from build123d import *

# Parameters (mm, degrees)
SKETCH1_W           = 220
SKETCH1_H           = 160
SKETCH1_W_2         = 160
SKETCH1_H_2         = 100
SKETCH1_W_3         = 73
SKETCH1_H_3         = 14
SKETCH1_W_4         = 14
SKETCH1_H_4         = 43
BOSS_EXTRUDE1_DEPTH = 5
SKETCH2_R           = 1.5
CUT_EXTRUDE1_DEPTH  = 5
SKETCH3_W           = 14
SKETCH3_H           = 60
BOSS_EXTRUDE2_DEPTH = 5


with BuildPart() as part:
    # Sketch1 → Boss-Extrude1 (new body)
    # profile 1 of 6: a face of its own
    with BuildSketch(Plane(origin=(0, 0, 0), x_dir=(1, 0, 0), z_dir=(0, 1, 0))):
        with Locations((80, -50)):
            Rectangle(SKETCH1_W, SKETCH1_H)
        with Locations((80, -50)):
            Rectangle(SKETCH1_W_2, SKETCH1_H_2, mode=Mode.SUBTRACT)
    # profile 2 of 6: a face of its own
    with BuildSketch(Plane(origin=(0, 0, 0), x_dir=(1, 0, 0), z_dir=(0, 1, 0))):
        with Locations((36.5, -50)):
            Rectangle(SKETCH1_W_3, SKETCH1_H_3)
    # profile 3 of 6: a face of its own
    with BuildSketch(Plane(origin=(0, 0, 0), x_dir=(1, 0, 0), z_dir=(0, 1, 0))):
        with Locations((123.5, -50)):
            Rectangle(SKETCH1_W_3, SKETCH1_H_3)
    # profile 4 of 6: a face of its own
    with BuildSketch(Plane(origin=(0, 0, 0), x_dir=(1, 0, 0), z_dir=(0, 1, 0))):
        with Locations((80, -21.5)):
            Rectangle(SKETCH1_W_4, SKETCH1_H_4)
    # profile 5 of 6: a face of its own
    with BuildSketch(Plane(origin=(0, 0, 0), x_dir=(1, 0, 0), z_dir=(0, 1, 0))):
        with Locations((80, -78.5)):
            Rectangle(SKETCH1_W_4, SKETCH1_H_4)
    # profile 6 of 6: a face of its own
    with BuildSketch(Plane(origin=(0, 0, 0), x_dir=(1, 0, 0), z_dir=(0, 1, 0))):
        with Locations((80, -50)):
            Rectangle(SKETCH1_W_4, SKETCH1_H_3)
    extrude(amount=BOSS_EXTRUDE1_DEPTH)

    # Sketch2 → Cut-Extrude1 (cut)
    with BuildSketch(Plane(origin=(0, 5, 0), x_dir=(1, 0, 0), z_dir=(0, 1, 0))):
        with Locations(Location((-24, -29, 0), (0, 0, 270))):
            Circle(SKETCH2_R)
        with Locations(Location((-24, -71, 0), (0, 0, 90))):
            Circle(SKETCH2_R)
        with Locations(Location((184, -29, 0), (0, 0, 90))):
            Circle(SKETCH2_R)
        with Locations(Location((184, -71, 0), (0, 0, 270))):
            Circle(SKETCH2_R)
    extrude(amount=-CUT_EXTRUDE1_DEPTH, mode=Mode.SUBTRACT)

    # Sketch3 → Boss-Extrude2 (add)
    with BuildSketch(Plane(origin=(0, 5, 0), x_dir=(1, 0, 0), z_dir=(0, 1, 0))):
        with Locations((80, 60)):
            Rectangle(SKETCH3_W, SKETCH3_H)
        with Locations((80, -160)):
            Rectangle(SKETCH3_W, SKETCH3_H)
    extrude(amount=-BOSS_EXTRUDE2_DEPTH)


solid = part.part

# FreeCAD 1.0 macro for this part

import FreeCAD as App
import Part
import Sketcher
from FreeCAD import Vector

doc = App.newDocument("Part")
body = doc.addObject("PartDesign::Body", "Body")

sketch1 = body.newObject("Sketcher::SketchObject", "Sketch")
sketch1.AttachmentSupport = (doc.getObject("XZ_Plane"), [""])
sketch1.MapMode = "FlatFace"
sketch1.addGeometry([
    Part.LineSegment(Vector(-30, -30, 0), Vector(-30, 130, 0)),
    Part.LineSegment(Vector(-30, 130, 0), Vector(190, 130, 0)),
    Part.LineSegment(Vector(190, 130, 0), Vector(190, -30, 0)),
    Part.LineSegment(Vector(190, -30, 0), Vector(-30, -30, 0)),
    Part.LineSegment(Vector(73, 100, 0), Vector(0, 100, 0)),
    Part.LineSegment(Vector(0, 100, 0), Vector(0, 57, 0)),
    Part.LineSegment(Vector(0, 57, 0), Vector(73, 57, 0)),
    Part.LineSegment(Vector(73, 57, 0), Vector(73, 100, 0)),
    Part.LineSegment(Vector(160, 100, 0), Vector(87, 100, 0)),
    Part.LineSegment(Vector(87, 100, 0), Vector(87, 57, 0)),
    Part.LineSegment(Vector(87, 57, 0), Vector(160, 57, 0)),
    Part.LineSegment(Vector(160, 57, 0), Vector(160, 100, 0)),
    Part.LineSegment(Vector(160, 0, 0), Vector(160, 43, 0)),
    Part.LineSegment(Vector(160, 43, 0), Vector(87, 43, 0)),
    Part.LineSegment(Vector(87, 43, 0), Vector(87, 0, 0)),
    Part.LineSegment(Vector(87, 0, 0), Vector(160, 0, 0)),
    Part.LineSegment(Vector(0, 0, 0), Vector(73, 0, 0)),
    Part.LineSegment(Vector(73, 0, 0), Vector(73, 43, 0)),
    Part.LineSegment(Vector(73, 43, 0), Vector(0, 43, 0)),
    Part.LineSegment(Vector(0, 43, 0), Vector(0, 0, 0)),
], False)
sketch1.addConstraint([
    Sketcher.Constraint("Coincident", 0, 2, 1, 1),
    Sketcher.Constraint("Coincident", 1, 2, 2, 1),
    Sketcher.Constraint("Coincident", 2, 2, 3, 1),
    Sketcher.Constraint("Coincident", 3, 2, 0, 1),
    Sketcher.Constraint("Coincident", 4, 2, 5, 1),
    Sketcher.Constraint("Coincident", 5, 2, 6, 1),
    Sketcher.Constraint("Coincident", 6, 2, 7, 1),
    Sketcher.Constraint("Coincident", 7, 2, 4, 1),
    Sketcher.Constraint("Coincident", 8, 2, 9, 1),
    Sketcher.Constraint("Coincident", 9, 2, 10, 1),
    Sketcher.Constraint("Coincident", 10, 2, 11, 1),
    Sketcher.Constraint("Coincident", 11, 2, 8, 1),
    Sketcher.Constraint("Coincident", 12, 2, 13, 1),
    Sketcher.Constraint("Coincident", 13, 2, 14, 1),
    Sketcher.Constraint("Coincident", 14, 2, 15, 1),
    Sketcher.Constraint("Coincident", 15, 2, 12, 1),
    Sketcher.Constraint("Coincident", 16, 2, 17, 1),
    Sketcher.Constraint("Coincident", 17, 2, 18, 1),
    Sketcher.Constraint("Coincident", 18, 2, 19, 1),
    Sketcher.Constraint("Coincident", 19, 2, 16, 1),
    Sketcher.Constraint("Vertical", 0),
    Sketcher.Constraint("Horizontal", 1),
    Sketcher.Constraint("Vertical", 2),
    Sketcher.Constraint("Horizontal", 3),
    Sketcher.Constraint("Horizontal", 4),
    Sketcher.Constraint("Vertical", 5),
    Sketcher.Constraint("Horizontal", 6),
    Sketcher.Constraint("Vertical", 7),
    Sketcher.Constraint("Horizontal", 8),
    Sketcher.Constraint("Vertical", 9),
    Sketcher.Constraint("Horizontal", 10),
    Sketcher.Constraint("Vertical", 11),
    Sketcher.Constraint("Vertical", 12),
    Sketcher.Constraint("Horizontal", 13),
    Sketcher.Constraint("Vertical", 14),
    Sketcher.Constraint("Horizontal", 15),
    Sketcher.Constraint("Horizontal", 16),
    Sketcher.Constraint("Vertical", 17),
    Sketcher.Constraint("Horizontal", 18),
    Sketcher.Constraint("Vertical", 19),
    Sketcher.Constraint("Coincident", 19, 2, -1, 1),
    Sketcher.Constraint("PointOnObject", 4, 2, -2),
    Sketcher.Constraint("PointOnObject", 14, 2, -1),
    Sketcher.Constraint("Horizontal", 7, 2, 8, 2),
    Sketcher.Constraint("Horizontal", 6, 2, 9, 2),
    Sketcher.Constraint("Horizontal", 13, 2, 17, 2),
    Sketcher.Constraint("Vertical", 11, 2, 12, 2),
    Sketcher.Constraint("Vertical", 9, 2, 13, 2),
    Sketcher.Constraint("Vertical", 7, 2, 16, 2),
    Sketcher.Constraint("Equal", 6, 8),
    Sketcher.Constraint("Equal", 11, 12),
    Sketcher.Constraint("DistanceX", 1, 1, 1, 2, 220.0),
    Sketcher.Constraint("DistanceX", 4, 2, 4, 1, 73.0),
    Sketcher.Constraint("DistanceY", 0, 1, 0, 2, 160.0),
    Sketcher.Constraint("DistanceY", 5, 2, 5, 1, 43.0),
    Sketcher.Constraint("DistanceX", 0, 2, -1, 1, 30.0),
    Sketcher.Constraint("DistanceY", -1, 1, 0, 2, 130.0),
    Sketcher.Constraint("DistanceY", -1, 1, 4, 2, 100.0),
    Sketcher.Constraint("DistanceX", -1, 1, 8, 2, 87.0),
])
pad1 = body.newObject("PartDesign::Pad", "Pad")
pad1.Profile = sketch1
pad1.Length = 5
pad1.Reversed = True

sketch2 = body.newObject("Sketcher::SketchObject", "Sketch001")
sketch2.AttachmentSupport = (doc.getObject("XZ_Plane"), [""])
sketch2.MapMode = "FlatFace"
sketch2.AttachmentOffset = App.Placement(Vector(0, 0, -5), App.Rotation())
sketch2.addGeometry([
    Part.Circle(Vector(-24, 29, 0), Vector(0, 0, 1), 1.5),
    Part.Circle(Vector(-24, 71, 0), Vector(0, 0, 1), 1.5),
    Part.Circle(Vector(184, 29, 0), Vector(0, 0, 1), 1.5),
    Part.Circle(Vector(184, 71, 0), Vector(0, 0, 1), 1.5),
], False)
sketch2.addConstraint([
    Sketcher.Constraint("Equal", 0, 1),
    Sketcher.Constraint("Equal", 1, 2),
    Sketcher.Constraint("Equal", 2, 3),
    Sketcher.Constraint("Horizontal", 0, 3, 2, 3),
    Sketcher.Constraint("Horizontal", 1, 3, 3, 3),
    Sketcher.Constraint("Vertical", 0, 3, 1, 3),
    Sketcher.Constraint("Vertical", 2, 3, 3, 3),
    Sketcher.Constraint("Diameter", 0, 3.0),
    Sketcher.Constraint("DistanceX", 0, 3, -1, 1, 24.0),
    Sketcher.Constraint("DistanceY", -1, 1, 0, 3, 29.0),
    Sketcher.Constraint("DistanceY", -1, 1, 1, 3, 71.0),
    Sketcher.Constraint("DistanceX", -1, 1, 2, 3, 184.0),
])
pocket1 = body.newObject("PartDesign::Pocket", "Pocket")
pocket1.Profile = sketch2
pocket1.Length = 5
pocket1.Reversed = True

sketch3 = body.newObject("Sketcher::SketchObject", "Sketch002")
sketch3.AttachmentSupport = (doc.getObject("XZ_Plane"), [""])
sketch3.MapMode = "FlatFace"
sketch3.AttachmentOffset = App.Placement(Vector(0, 0, -5), App.Rotation())
sketch3.addGeometry([
    Part.LineSegment(Vector(73, -90, 0), Vector(73, -30, 0)),
    Part.LineSegment(Vector(73, -30, 0), Vector(87, -30, 0)),
    Part.LineSegment(Vector(87, -30, 0), Vector(87, -90, 0)),
    Part.LineSegment(Vector(87, -90, 0), Vector(73, -90, 0)),
    Part.LineSegment(Vector(73, 130, 0), Vector(73, 190, 0)),
    Part.LineSegment(Vector(73, 190, 0), Vector(87, 190, 0)),
    Part.LineSegment(Vector(87, 190, 0), Vector(87, 130, 0)),
    Part.LineSegment(Vector(87, 130, 0), Vector(73, 130, 0)),
], False)
sketch3.addConstraint([
    Sketcher.Constraint("Coincident", 0, 2, 1, 1),
    Sketcher.Constraint("Coincident", 1, 2, 2, 1),
    Sketcher.Constraint("Coincident", 2, 2, 3, 1),
    Sketcher.Constraint("Coincident", 3, 2, 0, 1),
    Sketcher.Constraint("Coincident", 4, 2, 5, 1),
    Sketcher.Constraint("Coincident", 5, 2, 6, 1),
    Sketcher.Constraint("Coincident", 6, 2, 7, 1),
    Sketcher.Constraint("Coincident", 7, 2, 4, 1),
    Sketcher.Constraint("Vertical", 0),
    Sketcher.Constraint("Horizontal", 1),
    Sketcher.Constraint("Vertical", 2),
    Sketcher.Constraint("Horizontal", 3),
    Sketcher.Constraint("Vertical", 4),
    Sketcher.Constraint("Horizontal", 5),
    Sketcher.Constraint("Vertical", 6),
    Sketcher.Constraint("Horizontal", 7),
    Sketcher.Constraint("Vertical", 3, 2, 4, 2),
    Sketcher.Constraint("Vertical", 2, 2, 5, 2),
    Sketcher.Constraint("Equal", 2, 4),
    Sketcher.Constraint("DistanceX", 1, 1, 1, 2, 14.0),
    Sketcher.Constraint("DistanceY", 0, 1, 0, 2, 60.0),
    Sketcher.Constraint("DistanceX", -1, 1, 0, 2, 73.0),
    Sketcher.Constraint("DistanceY", 0, 2, -1, 1, 30.0),
    Sketcher.Constraint("DistanceY", -1, 1, 4, 2, 190.0),
])
pad2 = body.newObject("PartDesign::Pad", "Pad001")
pad2.Profile = sketch3
pad2.Length = 5

doc.recompute()
